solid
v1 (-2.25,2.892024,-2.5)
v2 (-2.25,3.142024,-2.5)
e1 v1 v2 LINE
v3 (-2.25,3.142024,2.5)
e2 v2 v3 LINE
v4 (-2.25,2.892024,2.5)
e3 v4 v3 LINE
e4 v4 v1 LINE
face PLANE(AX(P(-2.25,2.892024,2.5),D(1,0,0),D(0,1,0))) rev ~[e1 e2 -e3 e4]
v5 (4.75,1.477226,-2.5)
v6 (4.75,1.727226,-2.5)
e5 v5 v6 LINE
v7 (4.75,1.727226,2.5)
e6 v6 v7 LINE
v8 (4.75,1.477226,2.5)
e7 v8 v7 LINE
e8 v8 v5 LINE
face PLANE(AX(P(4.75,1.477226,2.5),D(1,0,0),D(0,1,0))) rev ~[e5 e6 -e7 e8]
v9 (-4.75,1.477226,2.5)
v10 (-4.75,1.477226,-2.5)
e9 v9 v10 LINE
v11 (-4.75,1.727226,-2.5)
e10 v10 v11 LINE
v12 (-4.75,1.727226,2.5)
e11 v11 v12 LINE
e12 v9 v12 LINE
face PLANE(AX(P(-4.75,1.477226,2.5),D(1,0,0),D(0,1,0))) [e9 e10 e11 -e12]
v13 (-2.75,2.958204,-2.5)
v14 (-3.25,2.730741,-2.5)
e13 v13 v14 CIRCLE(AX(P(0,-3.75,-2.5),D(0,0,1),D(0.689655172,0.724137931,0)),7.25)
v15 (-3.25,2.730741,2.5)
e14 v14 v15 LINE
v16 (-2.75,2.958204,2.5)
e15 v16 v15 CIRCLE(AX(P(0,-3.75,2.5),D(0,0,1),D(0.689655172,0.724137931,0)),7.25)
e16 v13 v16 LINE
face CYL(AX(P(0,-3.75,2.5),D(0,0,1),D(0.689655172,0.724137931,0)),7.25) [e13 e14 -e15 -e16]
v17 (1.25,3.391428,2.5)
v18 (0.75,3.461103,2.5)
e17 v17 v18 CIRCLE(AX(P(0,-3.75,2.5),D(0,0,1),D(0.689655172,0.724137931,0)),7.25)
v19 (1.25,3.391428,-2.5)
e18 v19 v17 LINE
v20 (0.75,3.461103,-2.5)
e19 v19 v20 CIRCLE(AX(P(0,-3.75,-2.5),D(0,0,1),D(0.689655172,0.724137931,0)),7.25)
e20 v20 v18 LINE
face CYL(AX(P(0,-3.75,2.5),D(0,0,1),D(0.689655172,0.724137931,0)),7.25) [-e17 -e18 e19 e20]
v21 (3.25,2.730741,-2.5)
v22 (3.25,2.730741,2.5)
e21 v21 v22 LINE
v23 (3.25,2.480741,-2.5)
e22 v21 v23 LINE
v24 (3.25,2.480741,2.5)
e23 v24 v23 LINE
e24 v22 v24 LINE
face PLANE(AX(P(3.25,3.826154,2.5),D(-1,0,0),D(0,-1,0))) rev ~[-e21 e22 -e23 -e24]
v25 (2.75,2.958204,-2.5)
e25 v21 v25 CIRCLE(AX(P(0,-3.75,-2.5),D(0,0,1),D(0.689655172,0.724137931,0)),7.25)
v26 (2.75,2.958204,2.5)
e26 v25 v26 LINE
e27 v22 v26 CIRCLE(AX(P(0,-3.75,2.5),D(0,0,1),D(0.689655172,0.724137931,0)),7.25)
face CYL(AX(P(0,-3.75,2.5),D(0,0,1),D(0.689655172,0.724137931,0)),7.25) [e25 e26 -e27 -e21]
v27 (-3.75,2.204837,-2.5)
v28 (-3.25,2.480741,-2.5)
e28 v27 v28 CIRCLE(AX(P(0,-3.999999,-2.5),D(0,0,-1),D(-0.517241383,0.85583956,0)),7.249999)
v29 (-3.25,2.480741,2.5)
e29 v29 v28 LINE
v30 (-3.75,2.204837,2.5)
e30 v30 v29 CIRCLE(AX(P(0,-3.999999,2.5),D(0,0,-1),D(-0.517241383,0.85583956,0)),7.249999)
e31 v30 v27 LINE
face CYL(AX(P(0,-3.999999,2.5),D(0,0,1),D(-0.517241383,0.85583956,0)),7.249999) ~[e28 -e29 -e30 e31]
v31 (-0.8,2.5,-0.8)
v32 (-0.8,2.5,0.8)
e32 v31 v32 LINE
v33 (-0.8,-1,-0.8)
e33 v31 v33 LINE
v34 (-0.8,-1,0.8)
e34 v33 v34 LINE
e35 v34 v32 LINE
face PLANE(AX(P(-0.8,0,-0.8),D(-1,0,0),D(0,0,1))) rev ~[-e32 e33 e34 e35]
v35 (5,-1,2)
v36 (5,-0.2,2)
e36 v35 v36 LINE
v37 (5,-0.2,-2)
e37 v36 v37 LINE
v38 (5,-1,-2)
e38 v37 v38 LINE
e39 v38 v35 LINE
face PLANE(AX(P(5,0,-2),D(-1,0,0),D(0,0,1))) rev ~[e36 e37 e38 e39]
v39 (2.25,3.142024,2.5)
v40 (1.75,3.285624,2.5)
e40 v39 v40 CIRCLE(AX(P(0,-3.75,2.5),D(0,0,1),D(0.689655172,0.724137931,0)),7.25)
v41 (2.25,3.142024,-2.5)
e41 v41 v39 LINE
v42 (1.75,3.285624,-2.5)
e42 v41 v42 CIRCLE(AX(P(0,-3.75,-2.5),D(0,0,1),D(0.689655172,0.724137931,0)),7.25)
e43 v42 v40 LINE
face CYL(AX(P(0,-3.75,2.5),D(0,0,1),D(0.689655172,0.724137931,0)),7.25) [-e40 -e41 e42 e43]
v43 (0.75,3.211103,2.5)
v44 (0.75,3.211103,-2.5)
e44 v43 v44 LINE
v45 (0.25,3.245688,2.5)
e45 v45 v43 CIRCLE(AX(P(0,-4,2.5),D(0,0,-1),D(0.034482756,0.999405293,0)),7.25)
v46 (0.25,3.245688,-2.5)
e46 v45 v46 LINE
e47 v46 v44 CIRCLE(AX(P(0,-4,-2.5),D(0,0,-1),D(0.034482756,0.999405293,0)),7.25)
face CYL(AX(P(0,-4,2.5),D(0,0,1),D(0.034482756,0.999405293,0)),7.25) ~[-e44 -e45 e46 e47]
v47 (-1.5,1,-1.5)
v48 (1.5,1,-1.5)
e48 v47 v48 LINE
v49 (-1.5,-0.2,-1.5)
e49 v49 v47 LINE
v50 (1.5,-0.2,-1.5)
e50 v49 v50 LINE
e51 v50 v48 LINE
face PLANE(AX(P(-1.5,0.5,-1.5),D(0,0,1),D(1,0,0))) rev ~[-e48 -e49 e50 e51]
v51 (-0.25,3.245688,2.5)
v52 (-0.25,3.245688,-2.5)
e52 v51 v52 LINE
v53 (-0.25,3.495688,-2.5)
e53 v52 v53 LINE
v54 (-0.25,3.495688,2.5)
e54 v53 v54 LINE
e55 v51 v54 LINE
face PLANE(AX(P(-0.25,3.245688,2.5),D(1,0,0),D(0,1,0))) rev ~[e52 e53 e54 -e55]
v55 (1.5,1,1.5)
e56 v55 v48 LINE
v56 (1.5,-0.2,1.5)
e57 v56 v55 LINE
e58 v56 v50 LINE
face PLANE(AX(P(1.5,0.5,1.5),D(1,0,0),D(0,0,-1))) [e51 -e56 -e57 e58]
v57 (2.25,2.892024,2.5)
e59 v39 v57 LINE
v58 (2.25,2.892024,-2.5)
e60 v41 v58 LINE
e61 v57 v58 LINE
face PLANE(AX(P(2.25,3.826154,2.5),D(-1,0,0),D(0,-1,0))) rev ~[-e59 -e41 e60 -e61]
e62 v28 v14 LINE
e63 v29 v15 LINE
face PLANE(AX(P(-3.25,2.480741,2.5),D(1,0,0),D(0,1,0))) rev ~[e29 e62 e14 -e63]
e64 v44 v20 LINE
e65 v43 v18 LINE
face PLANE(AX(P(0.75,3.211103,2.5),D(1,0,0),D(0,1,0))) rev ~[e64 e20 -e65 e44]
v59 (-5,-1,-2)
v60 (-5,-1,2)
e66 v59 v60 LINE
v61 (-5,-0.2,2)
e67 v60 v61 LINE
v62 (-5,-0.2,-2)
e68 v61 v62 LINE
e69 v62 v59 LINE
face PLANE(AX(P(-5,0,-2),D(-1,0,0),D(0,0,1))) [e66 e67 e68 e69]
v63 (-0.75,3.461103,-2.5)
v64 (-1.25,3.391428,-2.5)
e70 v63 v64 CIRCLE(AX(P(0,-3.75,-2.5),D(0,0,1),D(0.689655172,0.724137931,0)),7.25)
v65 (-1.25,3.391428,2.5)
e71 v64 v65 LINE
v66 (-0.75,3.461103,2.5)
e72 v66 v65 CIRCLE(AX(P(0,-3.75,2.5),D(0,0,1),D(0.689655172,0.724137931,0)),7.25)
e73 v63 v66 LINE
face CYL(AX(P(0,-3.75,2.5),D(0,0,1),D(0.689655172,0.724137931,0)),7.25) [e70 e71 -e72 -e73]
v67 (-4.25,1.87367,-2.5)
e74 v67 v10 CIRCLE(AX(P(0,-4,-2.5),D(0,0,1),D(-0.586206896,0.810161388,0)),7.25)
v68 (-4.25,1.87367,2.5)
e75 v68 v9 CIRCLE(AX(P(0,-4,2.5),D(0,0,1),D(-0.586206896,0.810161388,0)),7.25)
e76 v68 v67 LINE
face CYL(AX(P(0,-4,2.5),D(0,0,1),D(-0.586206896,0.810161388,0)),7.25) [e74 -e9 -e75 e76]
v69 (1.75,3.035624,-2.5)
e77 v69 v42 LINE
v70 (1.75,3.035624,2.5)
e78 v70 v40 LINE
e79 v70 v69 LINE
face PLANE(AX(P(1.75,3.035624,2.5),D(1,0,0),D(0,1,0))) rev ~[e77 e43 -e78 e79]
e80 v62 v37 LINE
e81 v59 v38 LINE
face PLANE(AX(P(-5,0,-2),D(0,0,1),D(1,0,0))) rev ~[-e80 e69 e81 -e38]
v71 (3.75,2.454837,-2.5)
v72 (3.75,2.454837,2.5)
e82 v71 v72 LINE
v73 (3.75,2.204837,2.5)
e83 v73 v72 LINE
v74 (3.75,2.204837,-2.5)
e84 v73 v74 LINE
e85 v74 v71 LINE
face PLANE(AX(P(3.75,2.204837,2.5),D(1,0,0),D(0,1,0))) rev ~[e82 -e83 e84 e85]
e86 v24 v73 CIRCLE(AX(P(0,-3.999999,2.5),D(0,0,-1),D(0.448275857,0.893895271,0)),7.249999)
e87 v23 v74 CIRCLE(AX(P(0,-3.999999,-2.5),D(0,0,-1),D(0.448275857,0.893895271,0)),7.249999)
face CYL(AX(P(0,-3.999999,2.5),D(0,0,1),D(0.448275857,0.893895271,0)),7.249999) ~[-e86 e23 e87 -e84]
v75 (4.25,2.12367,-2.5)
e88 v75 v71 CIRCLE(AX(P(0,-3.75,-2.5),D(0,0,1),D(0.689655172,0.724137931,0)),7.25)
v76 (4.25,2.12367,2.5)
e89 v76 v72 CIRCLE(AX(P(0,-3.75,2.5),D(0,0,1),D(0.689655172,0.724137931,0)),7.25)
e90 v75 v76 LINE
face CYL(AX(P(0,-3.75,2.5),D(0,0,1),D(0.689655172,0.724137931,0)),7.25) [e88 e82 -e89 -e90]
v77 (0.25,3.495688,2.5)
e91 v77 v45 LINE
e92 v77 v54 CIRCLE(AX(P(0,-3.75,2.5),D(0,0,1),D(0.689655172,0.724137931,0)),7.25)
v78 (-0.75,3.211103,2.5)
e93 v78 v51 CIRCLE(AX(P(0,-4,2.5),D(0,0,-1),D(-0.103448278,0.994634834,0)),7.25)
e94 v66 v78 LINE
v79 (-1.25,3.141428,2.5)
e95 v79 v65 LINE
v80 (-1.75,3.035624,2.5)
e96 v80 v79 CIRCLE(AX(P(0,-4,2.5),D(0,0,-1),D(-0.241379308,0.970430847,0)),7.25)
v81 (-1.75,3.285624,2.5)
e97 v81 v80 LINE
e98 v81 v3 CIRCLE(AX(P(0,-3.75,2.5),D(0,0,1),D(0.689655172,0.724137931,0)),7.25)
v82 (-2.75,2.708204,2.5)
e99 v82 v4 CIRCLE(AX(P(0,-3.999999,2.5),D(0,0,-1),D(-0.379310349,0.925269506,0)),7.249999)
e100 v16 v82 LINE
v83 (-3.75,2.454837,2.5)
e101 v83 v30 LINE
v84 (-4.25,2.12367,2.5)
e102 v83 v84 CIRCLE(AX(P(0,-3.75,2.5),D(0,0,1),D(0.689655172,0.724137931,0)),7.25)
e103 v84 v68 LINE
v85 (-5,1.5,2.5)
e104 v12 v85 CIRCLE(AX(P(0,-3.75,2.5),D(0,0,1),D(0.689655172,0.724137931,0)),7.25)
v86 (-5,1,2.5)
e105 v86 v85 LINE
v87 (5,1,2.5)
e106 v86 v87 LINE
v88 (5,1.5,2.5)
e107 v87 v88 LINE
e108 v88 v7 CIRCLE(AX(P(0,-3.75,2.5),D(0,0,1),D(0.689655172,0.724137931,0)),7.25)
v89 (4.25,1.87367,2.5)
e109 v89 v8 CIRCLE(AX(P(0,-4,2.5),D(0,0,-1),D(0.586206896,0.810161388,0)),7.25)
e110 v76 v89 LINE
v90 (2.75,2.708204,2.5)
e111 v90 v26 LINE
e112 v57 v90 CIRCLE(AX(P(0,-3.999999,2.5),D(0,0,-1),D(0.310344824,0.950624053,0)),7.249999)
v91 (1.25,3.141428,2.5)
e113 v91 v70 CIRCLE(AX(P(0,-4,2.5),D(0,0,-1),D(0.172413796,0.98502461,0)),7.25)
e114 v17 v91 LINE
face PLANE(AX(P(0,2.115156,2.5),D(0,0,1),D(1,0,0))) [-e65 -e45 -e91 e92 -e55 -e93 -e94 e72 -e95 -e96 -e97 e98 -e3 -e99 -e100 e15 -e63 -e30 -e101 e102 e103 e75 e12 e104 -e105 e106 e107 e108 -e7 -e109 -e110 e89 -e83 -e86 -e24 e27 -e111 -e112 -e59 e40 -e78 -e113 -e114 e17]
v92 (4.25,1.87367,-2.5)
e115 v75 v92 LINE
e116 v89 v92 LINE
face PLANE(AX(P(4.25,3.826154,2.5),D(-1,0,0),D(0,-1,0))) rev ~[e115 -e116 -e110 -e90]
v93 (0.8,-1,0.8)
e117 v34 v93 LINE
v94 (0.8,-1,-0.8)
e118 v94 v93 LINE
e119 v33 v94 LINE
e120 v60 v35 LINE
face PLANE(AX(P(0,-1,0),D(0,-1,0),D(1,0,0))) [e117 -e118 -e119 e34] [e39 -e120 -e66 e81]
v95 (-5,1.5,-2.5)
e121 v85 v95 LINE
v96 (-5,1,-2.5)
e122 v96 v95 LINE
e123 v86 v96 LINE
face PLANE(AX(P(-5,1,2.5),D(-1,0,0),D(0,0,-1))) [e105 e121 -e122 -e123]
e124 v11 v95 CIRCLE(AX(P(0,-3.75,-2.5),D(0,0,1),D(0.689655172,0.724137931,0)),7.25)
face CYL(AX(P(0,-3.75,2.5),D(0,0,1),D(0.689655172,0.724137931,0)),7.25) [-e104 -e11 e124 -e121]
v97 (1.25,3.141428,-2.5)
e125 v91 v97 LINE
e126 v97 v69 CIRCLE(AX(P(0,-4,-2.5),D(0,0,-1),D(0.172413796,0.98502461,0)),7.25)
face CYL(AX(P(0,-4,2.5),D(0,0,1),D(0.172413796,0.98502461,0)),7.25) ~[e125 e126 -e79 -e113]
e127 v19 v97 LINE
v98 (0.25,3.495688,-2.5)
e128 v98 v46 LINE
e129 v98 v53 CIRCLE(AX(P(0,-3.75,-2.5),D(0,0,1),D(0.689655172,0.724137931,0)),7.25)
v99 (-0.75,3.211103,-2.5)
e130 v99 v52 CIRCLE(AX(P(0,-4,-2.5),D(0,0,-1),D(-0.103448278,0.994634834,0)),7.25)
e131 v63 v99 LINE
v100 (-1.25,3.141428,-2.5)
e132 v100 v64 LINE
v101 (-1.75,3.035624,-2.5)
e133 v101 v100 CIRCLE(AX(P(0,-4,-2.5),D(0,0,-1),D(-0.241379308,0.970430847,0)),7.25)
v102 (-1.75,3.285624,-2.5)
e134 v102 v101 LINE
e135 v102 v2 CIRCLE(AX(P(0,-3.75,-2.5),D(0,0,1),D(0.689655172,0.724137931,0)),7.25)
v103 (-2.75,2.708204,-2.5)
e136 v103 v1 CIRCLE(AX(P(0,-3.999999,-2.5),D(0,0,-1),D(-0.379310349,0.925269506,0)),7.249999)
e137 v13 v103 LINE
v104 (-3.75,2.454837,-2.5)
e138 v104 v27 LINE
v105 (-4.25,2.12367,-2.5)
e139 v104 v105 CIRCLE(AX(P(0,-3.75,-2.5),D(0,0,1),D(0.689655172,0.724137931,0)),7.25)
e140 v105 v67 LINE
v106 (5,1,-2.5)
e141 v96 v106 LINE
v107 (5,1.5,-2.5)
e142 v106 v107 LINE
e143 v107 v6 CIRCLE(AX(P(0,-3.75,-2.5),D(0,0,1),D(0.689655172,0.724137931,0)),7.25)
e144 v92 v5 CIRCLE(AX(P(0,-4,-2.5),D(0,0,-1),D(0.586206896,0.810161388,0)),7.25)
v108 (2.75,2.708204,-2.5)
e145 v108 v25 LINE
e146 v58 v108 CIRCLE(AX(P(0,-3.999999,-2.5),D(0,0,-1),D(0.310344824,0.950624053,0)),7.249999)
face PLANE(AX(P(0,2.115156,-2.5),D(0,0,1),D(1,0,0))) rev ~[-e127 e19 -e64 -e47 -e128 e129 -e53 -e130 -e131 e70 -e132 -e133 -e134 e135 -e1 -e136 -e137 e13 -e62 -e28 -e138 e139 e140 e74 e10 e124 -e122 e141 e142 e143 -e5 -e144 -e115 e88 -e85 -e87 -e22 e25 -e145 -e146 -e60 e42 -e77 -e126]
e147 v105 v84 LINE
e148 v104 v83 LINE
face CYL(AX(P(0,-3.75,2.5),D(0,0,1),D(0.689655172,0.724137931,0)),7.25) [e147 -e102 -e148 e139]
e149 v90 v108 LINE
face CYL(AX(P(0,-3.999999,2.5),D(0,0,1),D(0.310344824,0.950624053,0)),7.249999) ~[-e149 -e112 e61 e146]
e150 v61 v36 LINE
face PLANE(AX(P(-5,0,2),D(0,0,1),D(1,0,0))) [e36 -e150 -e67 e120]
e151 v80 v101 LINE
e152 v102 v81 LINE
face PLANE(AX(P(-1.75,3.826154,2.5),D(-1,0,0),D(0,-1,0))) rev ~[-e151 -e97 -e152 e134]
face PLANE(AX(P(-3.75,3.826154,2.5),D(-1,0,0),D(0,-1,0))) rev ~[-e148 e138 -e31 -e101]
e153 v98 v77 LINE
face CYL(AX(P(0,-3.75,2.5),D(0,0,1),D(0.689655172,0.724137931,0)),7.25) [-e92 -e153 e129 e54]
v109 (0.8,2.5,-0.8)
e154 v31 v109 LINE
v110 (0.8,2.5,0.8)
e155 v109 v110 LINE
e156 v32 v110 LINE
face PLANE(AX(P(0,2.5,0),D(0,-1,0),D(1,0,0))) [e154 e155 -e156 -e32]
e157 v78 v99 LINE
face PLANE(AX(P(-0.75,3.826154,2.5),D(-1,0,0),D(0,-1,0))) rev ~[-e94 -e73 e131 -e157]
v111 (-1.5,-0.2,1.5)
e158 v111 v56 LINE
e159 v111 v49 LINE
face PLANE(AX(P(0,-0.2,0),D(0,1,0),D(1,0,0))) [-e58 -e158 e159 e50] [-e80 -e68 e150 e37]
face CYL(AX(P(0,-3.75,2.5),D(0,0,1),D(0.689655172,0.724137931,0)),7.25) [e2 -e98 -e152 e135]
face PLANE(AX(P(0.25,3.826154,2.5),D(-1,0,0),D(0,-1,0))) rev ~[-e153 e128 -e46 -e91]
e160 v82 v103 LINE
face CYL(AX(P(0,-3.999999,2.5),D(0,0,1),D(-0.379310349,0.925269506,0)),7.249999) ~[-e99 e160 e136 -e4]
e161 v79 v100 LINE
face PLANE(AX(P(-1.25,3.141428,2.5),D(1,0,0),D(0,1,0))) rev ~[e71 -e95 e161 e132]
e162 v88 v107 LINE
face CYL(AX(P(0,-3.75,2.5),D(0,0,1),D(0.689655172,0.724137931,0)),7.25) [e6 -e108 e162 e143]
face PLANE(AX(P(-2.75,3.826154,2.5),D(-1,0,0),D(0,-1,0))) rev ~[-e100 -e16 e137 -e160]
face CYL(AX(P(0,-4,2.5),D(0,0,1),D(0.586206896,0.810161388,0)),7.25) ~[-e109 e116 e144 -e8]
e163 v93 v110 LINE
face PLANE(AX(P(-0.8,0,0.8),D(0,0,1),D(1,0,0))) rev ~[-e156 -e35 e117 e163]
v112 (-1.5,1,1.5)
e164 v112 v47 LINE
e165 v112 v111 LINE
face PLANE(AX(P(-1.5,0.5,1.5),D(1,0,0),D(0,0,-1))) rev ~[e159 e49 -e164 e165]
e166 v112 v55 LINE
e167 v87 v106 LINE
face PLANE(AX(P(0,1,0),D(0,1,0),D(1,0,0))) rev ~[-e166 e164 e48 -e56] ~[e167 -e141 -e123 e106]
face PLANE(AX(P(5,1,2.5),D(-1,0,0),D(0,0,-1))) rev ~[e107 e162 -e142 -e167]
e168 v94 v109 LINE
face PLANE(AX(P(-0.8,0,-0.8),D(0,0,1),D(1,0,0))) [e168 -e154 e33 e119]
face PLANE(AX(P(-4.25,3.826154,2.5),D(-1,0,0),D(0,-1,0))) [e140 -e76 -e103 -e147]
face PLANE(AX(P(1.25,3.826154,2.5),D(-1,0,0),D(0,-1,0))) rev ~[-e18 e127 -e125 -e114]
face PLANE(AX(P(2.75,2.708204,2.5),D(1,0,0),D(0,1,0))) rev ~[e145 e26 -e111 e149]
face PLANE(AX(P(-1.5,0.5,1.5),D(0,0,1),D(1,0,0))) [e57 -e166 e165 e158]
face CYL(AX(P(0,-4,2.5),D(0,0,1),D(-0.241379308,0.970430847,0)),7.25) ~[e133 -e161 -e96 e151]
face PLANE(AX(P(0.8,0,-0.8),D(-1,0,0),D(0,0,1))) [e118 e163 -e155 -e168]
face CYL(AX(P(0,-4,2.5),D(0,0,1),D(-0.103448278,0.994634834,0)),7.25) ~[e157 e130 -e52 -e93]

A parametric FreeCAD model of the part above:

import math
import FreeCAD as App
import Part
import Sketcher
Q = App.Units.Quantity


def add_polygon(sketch, points):
    """Adds a closed chain of lines whose ends are joined by coincident constraints."""
    first, n = sketch.GeometryCount, len(points)
    for a, b in zip(points, points[1:] + points[:1]):
        sketch.addGeometry(Part.LineSegment(App.Vector(*a, 0), App.Vector(*b, 0)), False)
    for i in range(n):
        sketch.addConstraint(Sketcher.Constraint("Coincident", first + i, 2, first + (i + 1) % n, 1))

doc = App.newDocument("Part")
params = doc.addObject("Spreadsheet::Sheet", "Params")
for row, (alias, value) in enumerate([
    ("sketch1_width", "10 mm"),
    ("sketch1_height", "5 mm"),
    ("pad1_length", "0.5 mm"),
    ("sketch2_width", "3 mm"),
    ("pad2_length", "0.5 mm"),
    ("sketch3_width", "10 mm"),
    ("sketch3_height", "5 mm"),
    ("pad3_length", "0.5 mm"),
    ("sketch4_width", "10 mm"),
    ("sketch4_radius", "7.25 mm"),
    ("pad4_length", "5 mm"),
    ("sketch5_radius", "7.25 mm"),
    ("sketch5_width", "0.5 mm"),
    ("pocket1_length", "5 mm"),
    ("sketch6_width", "1.6 mm"),
    ("pocket2_length", "2.5 mm"),
    ("sketch7_width", "10 mm"),
    ("sketch7_height", "0.5 mm"),
    ("pocket3_length", "1 mm"),
    ("sketch8_width", "10 mm"),
    ("sketch8_height", "4 mm"),
    ("pad5_length", "1 mm"),
    ("sketch9_width", "10 mm"),
    ("sketch9_width2", "3 mm"),
    ("sketch9_height", "4 mm"),
    ("pocket4_length", "0.7 mm"),
    ("sketch10_width", "1.6 mm"),
], start=1):
    params.set(f"A{row}", alias)
    params.set(f"B{row}", "=" + value)
    params.setAlias(f"B{row}", alias)

body = doc.addObject("PartDesign::Body", "Body")

# Sketch on XZ plane
sketch1 = body.newObject("Sketcher::SketchObject", "Sketch")
sketch1.AttachmentSupport = (doc.getObject("XZ_Plane"), [""])
sketch1.MapMode = "FlatFace"
add_polygon(sketch1, [(-5, -2), (-5, 2), (5, 2), (5, -2)])  # lines 0-3
sketch1.addConstraint([
    Sketcher.Constraint("Vertical", 0),
    Sketcher.Constraint("Horizontal", 1),
    Sketcher.Constraint("Vertical", 2),
    Sketcher.Constraint("Horizontal", 3),
    Sketcher.Constraint("Symmetric", 0, 2, 2, 2, -1, 1),
    Sketcher.Constraint("DistanceX", 1, 1, 1, 2, Q("10 mm")),
    Sketcher.Constraint("DistanceY", 0, 1, 0, 2, Q("5 mm")),
])
sketch1.setExpression("Constraints[9]", "Params.sketch1_width")
sketch1.setExpression("Constraints[10]", "Params.sketch1_height")
pad1 = body.newObject("PartDesign::Pad", "Pad")
pad1.Profile = sketch1
pad1.setExpression("Length", "Params.pad1_length")
pad1.Reversed = True

# Sketch on XZ plane
sketch2 = body.newObject("Sketcher::SketchObject", "Sketch001")
sketch2.AttachmentSupport = (doc.getObject("XZ_Plane"), [""])
sketch2.MapMode = "FlatFace"
sketch2.AttachmentOffset = App.Placement(App.Vector(0, 0, -0.5), App.Rotation())
add_polygon(sketch2, [(-1.5, -1.5), (-1.5, 1.5), (1.5, 1.5), (1.5, -1.5)])  # lines 0-3
sketch2.addConstraint([
    Sketcher.Constraint("Vertical", 0),
    Sketcher.Constraint("Horizontal", 1),
    Sketcher.Constraint("Vertical", 2),
    Sketcher.Constraint("Horizontal", 3),
    Sketcher.Constraint("Symmetric", 0, 2, 2, 2, -1, 1),
    Sketcher.Constraint("Equal", 3, 0),
    Sketcher.Constraint("DistanceX", 1, 1, 1, 2, Q("3 mm")),
])
sketch2.setExpression("Constraints[10]", "Params.sketch2_width")
pad2 = body.newObject("PartDesign::Pad", "Pad001")
pad2.Profile = sketch2
pad2.setExpression("Length", "Params.pad2_length")
pad2.Reversed = True

# Sketch on XZ plane
sketch3 = body.newObject("Sketcher::SketchObject", "Sketch002")
sketch3.AttachmentSupport = (doc.getObject("XZ_Plane"), [""])
sketch3.MapMode = "FlatFace"
sketch3.AttachmentOffset = App.Placement(App.Vector(0, 0, -1), App.Rotation())
add_polygon(sketch3, [(-5, -2), (-5, 2), (5, 2), (5, -2)])  # lines 0-3
sketch3.addConstraint([
    Sketcher.Constraint("Vertical", 0),
    Sketcher.Constraint("Horizontal", 1),
    Sketcher.Constraint("Vertical", 2),
    Sketcher.Constraint("Horizontal", 3),
    Sketcher.Constraint("Symmetric", 0, 2, 2, 2, -1, 1),
    Sketcher.Constraint("DistanceX", 1, 1, 1, 2, Q("10 mm")),
    Sketcher.Constraint("DistanceY", 0, 1, 0, 2, Q("5 mm")),
])
sketch3.setExpression("Constraints[9]", "Params.sketch3_width")
sketch3.setExpression("Constraints[10]", "Params.sketch3_height")
pad3 = body.newObject("PartDesign::Pad", "Pad002")
pad3.Profile = sketch3
pad3.setExpression("Length", "Params.pad3_length")
pad3.Reversed = True

# Sketch on XY plane
sketch4 = body.newObject("Sketcher::SketchObject", "Sketch003")
sketch4.AttachmentSupport = (doc.getObject("XY_Plane"), [""])
sketch4.MapMode = "FlatFace"
sketch4.AttachmentOffset = App.Placement(App.Vector(0, 0, 2.5), App.Rotation())
sketch4.addGeometry([
    Part.LineSegment(App.Vector(-5, 2, 0), App.Vector(5, 2, 0)),
    Part.ArcOfCircle(Part.Circle(App.Vector(0, -4, 0), App.Vector(0, 0, 1), 7), math.radians(46), math.radians(134)),
], False)
sketch4.addConstraint([
    Sketcher.Constraint("Coincident", 0, 1, 1, 2),
    Sketcher.Constraint("Coincident", 1, 1, 0, 2),
    Sketcher.Constraint("Horizontal", 0),
    Sketcher.Constraint("PointOnObject", 1, 3, -2),
    Sketcher.Constraint("DistanceX", 0, 1, 0, 2, Q("10 mm")),
    Sketcher.Constraint("Radius", 1, Q("7.25 mm")),
    Sketcher.Constraint("DistanceY", -1, 1, 0, 1, Q("1.5 mm")),
])
sketch4.setExpression("Constraints[4]", "Params.sketch4_width")
sketch4.setExpression("Constraints[5]", "Params.sketch4_radius")
pad4 = body.newObject("PartDesign::Pad", "Pad003")
pad4.Profile = sketch4
pad4.setExpression("Length", "Params.pad4_length")
pad4.Reversed = True

# Sketch on XY plane
sketch5 = body.newObject("Sketcher::SketchObject", "Sketch004")
sketch5.AttachmentSupport = (doc.getObject("XY_Plane"), [""])
sketch5.MapMode = "FlatFace"
sketch5.AttachmentOffset = App.Placement(App.Vector(0, 0, 2.5), App.Rotation())
sketch5.addGeometry([
    Part.LineSegment(App.Vector(-4.2, 3.8, 0), App.Vector(-4.8, 3.8, 0)),  # 0
    Part.LineSegment(App.Vector(-4.8, 3.8, 0), App.Vector(-4.8, 1.5, 0)),  # 1
    Part.ArcOfCircle(Part.Circle(App.Vector(0, -4, 0), App.Vector(0, 0, 1), 7.2), math.radians(125.89), math.radians(130.93)),  # 2
    Part.LineSegment(App.Vector(-4.2, 1.9, 0), App.Vector(-4.2, 3.8, 0)),  # 3
    Part.LineSegment(App.Vector(-3.8, 3.8, 0), App.Vector(-3.8, 2.2, 0)),  # 4
    Part.ArcOfCircle(Part.Circle(App.Vector(0, -4, 0), App.Vector(0, 0, 1), 7.2), math.radians(116.63), math.radians(121.15)),  # 5
    Part.LineSegment(App.Vector(-3.2, 2.5, 0), App.Vector(-3.2, 3.8, 0)),  # 6
    Part.LineSegment(App.Vector(-3.2, 3.8, 0), App.Vector(-3.8, 3.8, 0)),  # 7
    Part.LineSegment(App.Vector(-2.8, 3.8, 0), App.Vector(-2.8, 2.7, 0)),  # 8
    Part.ArcOfCircle(Part.Circle(App.Vector(0, -4, 0), App.Vector(0, 0, 1), 7.2), math.radians(108.08), math.radians(112.29)),  # 9
    Part.LineSegment(App.Vector(-2.2, 2.9, 0), App.Vector(-2.2, 3.8, 0)),  # 10
    Part.LineSegment(App.Vector(-2.2, 3.8, 0), App.Vector(-2.8, 3.8, 0)),  # 11
    Part.LineSegment(App.Vector(-1.8, 3.8, 0), App.Vector(-1.8, 3, 0)),  # 12
    Part.ArcOfCircle(Part.Circle(App.Vector(0, -4, 0), App.Vector(0, 0, 1), 7.3), math.radians(99.93), math.radians(103.97)),  # 13
    Part.LineSegment(App.Vector(-1.2, 3.1, 0), App.Vector(-1.2, 3.8, 0)),  # 14
    Part.LineSegment(App.Vector(-1.2, 3.8, 0), App.Vector(-1.8, 3.8, 0)),  # 15
    Part.LineSegment(App.Vector(-0.8, 3.8, 0), App.Vector(-0.8, 3.2, 0)),  # 16
    Part.ArcOfCircle(Part.Circle(App.Vector(0, -4, 0), App.Vector(0, 0, 1), 7.2), math.radians(91.98), math.radians(95.94)),  # 17
    Part.LineSegment(App.Vector(-0.2, 3.2, 0), App.Vector(-0.2, 3.8, 0)),  # 18
    Part.LineSegment(App.Vector(-0.2, 3.8, 0), App.Vector(-0.8, 3.8, 0)),  # 19
    Part.LineSegment(App.Vector(0.2, 3.8, 0), App.Vector(0.2, 3.2, 0)),  # 20
    Part.ArcOfCircle(Part.Circle(App.Vector(0, -4, 0), App.Vector(0, 0, 1), 7.2), math.radians(84.06), math.radians(88.02)),  # 21
    Part.LineSegment(App.Vector(0.8, 3.2, 0), App.Vector(0.8, 3.8, 0)),  # 22
    Part.LineSegment(App.Vector(0.8, 3.8, 0), App.Vector(0.2, 3.8, 0)),  # 23
    Part.LineSegment(App.Vector(1.2, 3.8, 0), App.Vector(1.2, 3.1, 0)),  # 24
    Part.ArcOfCircle(Part.Circle(App.Vector(0, -4, 0), App.Vector(0, 0, 1), 7.3), math.radians(76.03), math.radians(80.07)),  # 25
    Part.LineSegment(App.Vector(1.8, 3, 0), App.Vector(1.8, 3.8, 0)),  # 26
    Part.LineSegment(App.Vector(1.8, 3.8, 0), App.Vector(1.2, 3.8, 0)),  # 27
    Part.LineSegment(App.Vector(2.2, 3.8, 0), App.Vector(2.2, 2.9, 0)),  # 28
    Part.ArcOfCircle(Part.Circle(App.Vector(0, -4, 0), App.Vector(0, 0, 1), 7.2), math.radians(67.71), math.radians(71.92)),  # 29
    Part.LineSegment(App.Vector(2.8, 2.7, 0), App.Vector(2.8, 3.8, 0)),  # 30
    Part.LineSegment(App.Vector(2.8, 3.8, 0), App.Vector(2.2, 3.8, 0)),  # 31
    Part.LineSegment(App.Vector(3.2, 3.8, 0), App.Vector(3.2, 2.5, 0)),  # 32
    Part.ArcOfCircle(Part.Circle(App.Vector(0, -4, 0), App.Vector(0, 0, 1), 7.2), math.radians(58.85), math.radians(63.37)),  # 33
    Part.LineSegment(App.Vector(3.8, 2.2, 0), App.Vector(3.8, 3.8, 0)),  # 34
    Part.LineSegment(App.Vector(3.8, 3.8, 0), App.Vector(3.2, 3.8, 0)),  # 35
    Part.LineSegment(App.Vector(4.2, 3.8, 0), App.Vector(4.2, 1.9, 0)),  # 36
    Part.ArcOfCircle(Part.Circle(App.Vector(0, -4, 0), App.Vector(0, 0, 1), 7.2), math.radians(49.07), math.radians(54.11)),  # 37
    Part.LineSegment(App.Vector(4.8, 1.5, 0), App.Vector(4.8, 3.8, 0)),  # 38
    Part.LineSegment(App.Vector(4.8, 3.8, 0), App.Vector(4.2, 3.8, 0)),  # 39
], False)
sketch5.addConstraint([
    Sketcher.Constraint("Coincident", 0, 2, 1, 1),
    Sketcher.Constraint("Coincident", 1, 2, 2, 2),
    Sketcher.Constraint("Coincident", 2, 1, 3, 1),
    Sketcher.Constraint("Coincident", 3, 2, 0, 1),
    Sketcher.Constraint("Coincident", 4, 2, 5, 2),
    Sketcher.Constraint("Coincident", 5, 1, 6, 1),
    Sketcher.Constraint("Coincident", 6, 2, 7, 1),
    Sketcher.Constraint("Coincident", 7, 2, 4, 1),
    Sketcher.Constraint("Coincident", 8, 2, 9, 2),
    Sketcher.Constraint("Coincident", 9, 1, 10, 1),
    Sketcher.Constraint("Coincident", 10, 2, 11, 1),
    Sketcher.Constraint("Coincident", 11, 2, 8, 1),
    Sketcher.Constraint("Coincident", 12, 2, 13, 2),
    Sketcher.Constraint("Coincident", 13, 1, 14, 1),
    Sketcher.Constraint("Coincident", 14, 2, 15, 1),
    Sketcher.Constraint("Coincident", 15, 2, 12, 1),
    Sketcher.Constraint("Coincident", 16, 2, 17, 2),
    Sketcher.Constraint("Coincident", 17, 1, 18, 1),
    Sketcher.Constraint("Coincident", 18, 2, 19, 1),
    Sketcher.Constraint("Coincident", 19, 2, 16, 1),
    Sketcher.Constraint("Coincident", 20, 2, 21, 2),
    Sketcher.Constraint("Coincident", 21, 1, 22, 1),
    Sketcher.Constraint("Coincident", 22, 2, 23, 1),
    Sketcher.Constraint("Coincident", 23, 2, 20, 1),
    Sketcher.Constraint("Coincident", 24, 2, 25, 2),
    Sketcher.Constraint("Coincident", 25, 1, 26, 1),
    Sketcher.Constraint("Coincident", 26, 2, 27, 1),
    Sketcher.Constraint("Coincident", 27, 2, 24, 1),
    Sketcher.Constraint("Coincident", 28, 2, 29, 2),
    Sketcher.Constraint("Coincident", 29, 1, 30, 1),
    Sketcher.Constraint("Coincident", 30, 2, 31, 1),
    Sketcher.Constraint("Coincident", 31, 2, 28, 1),
    Sketcher.Constraint("Coincident", 32, 2, 33, 2),
    Sketcher.Constraint("Coincident", 33, 1, 34, 1),
    Sketcher.Constraint("Coincident", 34, 2, 35, 1),
    Sketcher.Constraint("Coincident", 35, 2, 32, 1),
    Sketcher.Constraint("Coincident", 36, 2, 37, 2),
    Sketcher.Constraint("Coincident", 37, 1, 38, 1),
    Sketcher.Constraint("Coincident", 38, 2, 39, 1),
    Sketcher.Constraint("Coincident", 39, 2, 36, 1),
    Sketcher.Constraint("Horizontal", 0),
    Sketcher.Constraint("Vertical", 1),
    Sketcher.Constraint("Vertical", 3),
    Sketcher.Constraint("Vertical", 4),
    Sketcher.Constraint("Vertical", 6),
    Sketcher.Constraint("Horizontal", 7),
    Sketcher.Constraint("Vertical", 8),
    Sketcher.Constraint("Vertical", 10),
    Sketcher.Constraint("Horizontal", 11),
    Sketcher.Constraint("Vertical", 12),
    Sketcher.Constraint("Vertical", 14),
    Sketcher.Constraint("Horizontal", 15),
    Sketcher.Constraint("Vertical", 16),
    Sketcher.Constraint("Vertical", 18),
    Sketcher.Constraint("Horizontal", 19),
    Sketcher.Constraint("Vertical", 20),
    Sketcher.Constraint("Vertical", 22),
    Sketcher.Constraint("Horizontal", 23),
    Sketcher.Constraint("Vertical", 24),
    Sketcher.Constraint("Vertical", 26),
    Sketcher.Constraint("Horizontal", 27),
    Sketcher.Constraint("Vertical", 28),
    Sketcher.Constraint("Vertical", 30),
    Sketcher.Constraint("Horizontal", 31),
    Sketcher.Constraint("Vertical", 32),
    Sketcher.Constraint("Vertical", 34),
    Sketcher.Constraint("Horizontal", 35),
    Sketcher.Constraint("Vertical", 36),
    Sketcher.Constraint("Vertical", 38),
    Sketcher.Constraint("Horizontal", 39),
    Sketcher.Constraint("Coincident", 5, 3, 2, 3),
    Sketcher.Constraint("Coincident", 9, 3, 2, 3),
    Sketcher.Constraint("Coincident", 13, 3, 2, 3),
    Sketcher.Constraint("Coincident", 17, 3, 2, 3),
    Sketcher.Constraint("Coincident", 21, 3, 2, 3),
    Sketcher.Constraint("Coincident", 25, 3, 2, 3),
    Sketcher.Constraint("Coincident", 29, 3, 2, 3),
    Sketcher.Constraint("Coincident", 33, 3, 2, 3),
    Sketcher.Constraint("Coincident", 37, 3, 2, 3),
    Sketcher.Constraint("Equal", 2, 5),
    Sketcher.Constraint("Equal", 5, 9),
    Sketcher.Constraint("Equal", 9, 13),
    Sketcher.Constraint("Equal", 13, 17),
    Sketcher.Constraint("Equal", 17, 21),
    Sketcher.Constraint("Equal", 21, 25),
    Sketcher.Constraint("Equal", 25, 29),
    Sketcher.Constraint("Equal", 29, 33),
    Sketcher.Constraint("Equal", 33, 37),
    Sketcher.Constraint("Symmetric", 17, 1, 20, 2, -2),
    Sketcher.Constraint("Symmetric", 19, 2, 22, 2, -2),
    Sketcher.Constraint("Symmetric", 15, 2, 26, 2, -2),
    Sketcher.Constraint("Symmetric", 11, 2, 30, 2, -2),
    Sketcher.Constraint("Symmetric", 7, 2, 34, 2, -2),
    Sketcher.Constraint("Symmetric", 0, 2, 38, 2, -2),
    Sketcher.Constraint("Horizontal", 3, 2, 6, 2),
    Sketcher.Constraint("Horizontal", 7, 2, 10, 2),
    Sketcher.Constraint("Horizontal", 11, 2, 14, 2),
    Sketcher.Constraint("Horizontal", 15, 2, 18, 2),
    Sketcher.Constraint("Horizontal", 13, 1, 24, 2),
    Sketcher.Constraint("Horizontal", 9, 1, 28, 2),
    Sketcher.Constraint("Horizontal", 5, 1, 32, 2),
    Sketcher.Constraint("Horizontal", 2, 1, 36, 2),
    Sketcher.Constraint("Equal", 0, 7),
    Sketcher.Constraint("Equal", 7, 11),
    Sketcher.Constraint("Equal", 11, 15),
    Sketcher.Constraint("Equal", 15, 19),
    Sketcher.Constraint("Radius", 2, Q("7.25 mm")),
    Sketcher.Constraint("DistanceX", 0, 2, 0, 1, Q("0.5 mm")),
    Sketcher.Constraint("DistanceY", 2, 3, -1, 1, Q("4 mm")),
    Sketcher.Constraint("DistanceX", 1, 2, 4, 2, Q("1 mm")),
    Sketcher.Constraint("DistanceX", 4, 2, 8, 2, Q("1 mm")),
    Sketcher.Constraint("DistanceX", 8, 2, 12, 2, Q("1 mm")),
    Sketcher.Constraint("DistanceX", 12, 2, 16, 2, Q("1 mm")),
    Sketcher.Constraint("DistanceX", 16, 2, 20, 2, Q("1 mm")),
    Sketcher.Constraint("DistanceY", 1, 2, 1, 1, Q("2.348928 mm")),
])
sketch5.setExpression("Constraints[106]", "Params.sketch5_radius")
sketch5.setExpression("Constraints[107]", "Params.sketch5_width")
pocket1 = body.newObject("PartDesign::Pocket", "Pocket")
pocket1.Profile = sketch5
pocket1.setExpression("Length", "Params.pocket1_length")

# Sketch on XZ plane
sketch6 = body.newObject("Sketcher::SketchObject", "Sketch005")
sketch6.AttachmentSupport = (doc.getObject("XZ_Plane"), [""])
sketch6.MapMode = "FlatFace"
add_polygon(sketch6, [(-0.8, 0.8), (-0.8, -0.8), (0.8, -0.8), (0.8, 0.8)])  # lines 0-3
sketch6.addConstraint([
    Sketcher.Constraint("Vertical", 0),
    Sketcher.Constraint("Horizontal", 1),
    Sketcher.Constraint("Vertical", 2),
    Sketcher.Constraint("Horizontal", 3),
    Sketcher.Constraint("Symmetric", 0, 2, 2, 2, -1, 1),
    Sketcher.Constraint("Equal", 3, 0),
    Sketcher.Constraint("DistanceX", 1, 1, 1, 2, Q("1.6 mm")),
])
sketch6.setExpression("Constraints[10]", "Params.sketch6_width")
pocket2 = body.newObject("PartDesign::Pocket", "Pocket001")
pocket2.Profile = sketch6
pocket2.setExpression("Length", "Params.pocket2_length")

# Sketch on XZ plane
sketch7 = body.newObject("Sketcher::SketchObject", "Sketch006")
sketch7.AttachmentSupport = (doc.getObject("XZ_Plane"), [""])
sketch7.MapMode = "FlatFace"
add_polygon(sketch7, [(-5, 2.5), (-5, 2), (5, 2), (5, 2.5)])  # lines 0-3
add_polygon(sketch7, [(-5, -2), (-5, -2.5), (5, -2.5), (5, -2)])  # lines 4-7
sketch7.addConstraint([
    Sketcher.Constraint("Vertical", 0),
    Sketcher.Constraint("Horizontal", 1),
    Sketcher.Constraint("Vertical", 2),
    Sketcher.Constraint("Horizontal", 3),
    Sketcher.Constraint("Vertical", 4),
    Sketcher.Constraint("Horizontal", 5),
    Sketcher.Constraint("Vertical", 6),
    Sketcher.Constraint("Horizontal", 7),
    Sketcher.Constraint("Symmetric", 2, 2, 4, 2, -1, 1),
    Sketcher.Constraint("Symmetric", 0, 2, 6, 2, -1, 1),
    Sketcher.Constraint("Vertical", 3, 2, 4, 2),
    Sketcher.Constraint("DistanceX", 1, 1, 1, 2, Q("10 mm")),
    Sketcher.Constraint("DistanceY", 0, 2, 0, 1, Q("0.5 mm")),
    Sketcher.Constraint("DistanceY", -1, 1, 0, 2, Q("2 mm")),
])
sketch7.setExpression("Constraints[19]", "Params.sketch7_width")
sketch7.setExpression("Constraints[20]", "Params.sketch7_height")
pocket3 = body.newObject("PartDesign::Pocket", "Pocket002")
pocket3.Profile = sketch7
pocket3.setExpression("Length", "Params.pocket3_length")

# Sketch on XZ plane
sketch8 = body.newObject("Sketcher::SketchObject", "Sketch007")
sketch8.AttachmentSupport = (doc.getObject("XZ_Plane"), [""])
sketch8.MapMode = "FlatFace"
add_polygon(sketch8, [(-5, 2), (-5, -2), (5, -2), (5, 2)])  # lines 0-3
sketch8.addConstraint([
    Sketcher.Constraint("Vertical", 0),
    Sketcher.Constraint("Horizontal", 1),
    Sketcher.Constraint("Vertical", 2),
    Sketcher.Constraint("Horizontal", 3),
    Sketcher.Constraint("Symmetric", 0, 2, 2, 2, -1, 1),
    Sketcher.Constraint("DistanceX", 1, 1, 1, 2, Q("10 mm")),
    Sketcher.Constraint("DistanceY", 0, 2, 0, 1, Q("4 mm")),
])
sketch8.setExpression("Constraints[9]", "Params.sketch8_width")
sketch8.setExpression("Constraints[10]", "Params.sketch8_height")
pad5 = body.newObject("PartDesign::Pad", "Pad004")
pad5.Profile = sketch8
pad5.setExpression("Length", "Params.pad5_length")

# Sketch on XZ plane
sketch9 = body.newObject("Sketcher::SketchObject", "Sketch008")
sketch9.AttachmentSupport = (doc.getObject("XZ_Plane"), [""])
sketch9.MapMode = "FlatFace"
sketch9.AttachmentOffset = App.Placement(App.Vector(0, 0, -0.5), App.Rotation())
add_polygon(sketch9, [(-5, -2), (-5, 2), (5, 2), (5, -2)])  # lines 0-3
add_polygon(sketch9, [(1.5, 1.5), (-1.5, 1.5), (-1.5, -1.5), (1.5, -1.5)])  # lines 4-7
sketch9.addConstraint([
    Sketcher.Constraint("Vertical", 0),
    Sketcher.Constraint("Horizontal", 1),
    Sketcher.Constraint("Vertical", 2),
    Sketcher.Constraint("Horizontal", 3),
    Sketcher.Constraint("Horizontal", 4),
    Sketcher.Constraint("Vertical", 5),
    Sketcher.Constraint("Horizontal", 6),
    Sketcher.Constraint("Vertical", 7),
    Sketcher.Constraint("Symmetric", 0, 2, 2, 2, -1, 1),
    Sketcher.Constraint("Symmetric", 4, 2, 6, 2, -1, 1),
    Sketcher.Constraint("Equal", 6, 5),
    Sketcher.Constraint("DistanceX", 1, 1, 1, 2, Q("10 mm")),
    Sketcher.Constraint("DistanceX", 4, 2, 4, 1, Q("3 mm")),
    Sketcher.Constraint("DistanceY", 0, 1, 0, 2, Q("4 mm")),
])
sketch9.setExpression("Constraints[19]", "Params.sketch9_width")
sketch9.setExpression("Constraints[20]", "Params.sketch9_width2")
sketch9.setExpression("Constraints[21]", "Params.sketch9_height")
pocket4 = body.newObject("PartDesign::Pocket", "Pocket003")
pocket4.Profile = sketch9
pocket4.setExpression("Length", "Params.pocket4_length")
pocket4.Reversed = True

# Sketch on XZ plane
sketch10 = body.newObject("Sketcher::SketchObject", "Sketch009")
sketch10.AttachmentSupport = (doc.getObject("XZ_Plane"), [""])
sketch10.MapMode = "FlatFace"
add_polygon(sketch10, [(-0.8, 0.8), (-0.8, -0.8), (0.8, -0.8), (0.8, 0.8)])  # lines 0-3
sketch10.addConstraint([
    Sketcher.Constraint("Vertical", 0),
    Sketcher.Constraint("Horizontal", 1),
    Sketcher.Constraint("Vertical", 2),
    Sketcher.Constraint("Horizontal", 3),
    Sketcher.Constraint("Symmetric", 0, 2, 2, 2, -1, 1),
    Sketcher.Constraint("Equal", 3, 0),
    Sketcher.Constraint("DistanceX", 1, 1, 1, 2, Q("1.6 mm")),
])
sketch10.setExpression("Constraints[10]", "Params.sketch10_width")
pocket5 = body.newObject("PartDesign::Pocket", "Pocket004")
pocket5.Profile = sketch10
pocket5.Type = "UpToFirst"
pocket5.Reversed = True

doc.recompute()
